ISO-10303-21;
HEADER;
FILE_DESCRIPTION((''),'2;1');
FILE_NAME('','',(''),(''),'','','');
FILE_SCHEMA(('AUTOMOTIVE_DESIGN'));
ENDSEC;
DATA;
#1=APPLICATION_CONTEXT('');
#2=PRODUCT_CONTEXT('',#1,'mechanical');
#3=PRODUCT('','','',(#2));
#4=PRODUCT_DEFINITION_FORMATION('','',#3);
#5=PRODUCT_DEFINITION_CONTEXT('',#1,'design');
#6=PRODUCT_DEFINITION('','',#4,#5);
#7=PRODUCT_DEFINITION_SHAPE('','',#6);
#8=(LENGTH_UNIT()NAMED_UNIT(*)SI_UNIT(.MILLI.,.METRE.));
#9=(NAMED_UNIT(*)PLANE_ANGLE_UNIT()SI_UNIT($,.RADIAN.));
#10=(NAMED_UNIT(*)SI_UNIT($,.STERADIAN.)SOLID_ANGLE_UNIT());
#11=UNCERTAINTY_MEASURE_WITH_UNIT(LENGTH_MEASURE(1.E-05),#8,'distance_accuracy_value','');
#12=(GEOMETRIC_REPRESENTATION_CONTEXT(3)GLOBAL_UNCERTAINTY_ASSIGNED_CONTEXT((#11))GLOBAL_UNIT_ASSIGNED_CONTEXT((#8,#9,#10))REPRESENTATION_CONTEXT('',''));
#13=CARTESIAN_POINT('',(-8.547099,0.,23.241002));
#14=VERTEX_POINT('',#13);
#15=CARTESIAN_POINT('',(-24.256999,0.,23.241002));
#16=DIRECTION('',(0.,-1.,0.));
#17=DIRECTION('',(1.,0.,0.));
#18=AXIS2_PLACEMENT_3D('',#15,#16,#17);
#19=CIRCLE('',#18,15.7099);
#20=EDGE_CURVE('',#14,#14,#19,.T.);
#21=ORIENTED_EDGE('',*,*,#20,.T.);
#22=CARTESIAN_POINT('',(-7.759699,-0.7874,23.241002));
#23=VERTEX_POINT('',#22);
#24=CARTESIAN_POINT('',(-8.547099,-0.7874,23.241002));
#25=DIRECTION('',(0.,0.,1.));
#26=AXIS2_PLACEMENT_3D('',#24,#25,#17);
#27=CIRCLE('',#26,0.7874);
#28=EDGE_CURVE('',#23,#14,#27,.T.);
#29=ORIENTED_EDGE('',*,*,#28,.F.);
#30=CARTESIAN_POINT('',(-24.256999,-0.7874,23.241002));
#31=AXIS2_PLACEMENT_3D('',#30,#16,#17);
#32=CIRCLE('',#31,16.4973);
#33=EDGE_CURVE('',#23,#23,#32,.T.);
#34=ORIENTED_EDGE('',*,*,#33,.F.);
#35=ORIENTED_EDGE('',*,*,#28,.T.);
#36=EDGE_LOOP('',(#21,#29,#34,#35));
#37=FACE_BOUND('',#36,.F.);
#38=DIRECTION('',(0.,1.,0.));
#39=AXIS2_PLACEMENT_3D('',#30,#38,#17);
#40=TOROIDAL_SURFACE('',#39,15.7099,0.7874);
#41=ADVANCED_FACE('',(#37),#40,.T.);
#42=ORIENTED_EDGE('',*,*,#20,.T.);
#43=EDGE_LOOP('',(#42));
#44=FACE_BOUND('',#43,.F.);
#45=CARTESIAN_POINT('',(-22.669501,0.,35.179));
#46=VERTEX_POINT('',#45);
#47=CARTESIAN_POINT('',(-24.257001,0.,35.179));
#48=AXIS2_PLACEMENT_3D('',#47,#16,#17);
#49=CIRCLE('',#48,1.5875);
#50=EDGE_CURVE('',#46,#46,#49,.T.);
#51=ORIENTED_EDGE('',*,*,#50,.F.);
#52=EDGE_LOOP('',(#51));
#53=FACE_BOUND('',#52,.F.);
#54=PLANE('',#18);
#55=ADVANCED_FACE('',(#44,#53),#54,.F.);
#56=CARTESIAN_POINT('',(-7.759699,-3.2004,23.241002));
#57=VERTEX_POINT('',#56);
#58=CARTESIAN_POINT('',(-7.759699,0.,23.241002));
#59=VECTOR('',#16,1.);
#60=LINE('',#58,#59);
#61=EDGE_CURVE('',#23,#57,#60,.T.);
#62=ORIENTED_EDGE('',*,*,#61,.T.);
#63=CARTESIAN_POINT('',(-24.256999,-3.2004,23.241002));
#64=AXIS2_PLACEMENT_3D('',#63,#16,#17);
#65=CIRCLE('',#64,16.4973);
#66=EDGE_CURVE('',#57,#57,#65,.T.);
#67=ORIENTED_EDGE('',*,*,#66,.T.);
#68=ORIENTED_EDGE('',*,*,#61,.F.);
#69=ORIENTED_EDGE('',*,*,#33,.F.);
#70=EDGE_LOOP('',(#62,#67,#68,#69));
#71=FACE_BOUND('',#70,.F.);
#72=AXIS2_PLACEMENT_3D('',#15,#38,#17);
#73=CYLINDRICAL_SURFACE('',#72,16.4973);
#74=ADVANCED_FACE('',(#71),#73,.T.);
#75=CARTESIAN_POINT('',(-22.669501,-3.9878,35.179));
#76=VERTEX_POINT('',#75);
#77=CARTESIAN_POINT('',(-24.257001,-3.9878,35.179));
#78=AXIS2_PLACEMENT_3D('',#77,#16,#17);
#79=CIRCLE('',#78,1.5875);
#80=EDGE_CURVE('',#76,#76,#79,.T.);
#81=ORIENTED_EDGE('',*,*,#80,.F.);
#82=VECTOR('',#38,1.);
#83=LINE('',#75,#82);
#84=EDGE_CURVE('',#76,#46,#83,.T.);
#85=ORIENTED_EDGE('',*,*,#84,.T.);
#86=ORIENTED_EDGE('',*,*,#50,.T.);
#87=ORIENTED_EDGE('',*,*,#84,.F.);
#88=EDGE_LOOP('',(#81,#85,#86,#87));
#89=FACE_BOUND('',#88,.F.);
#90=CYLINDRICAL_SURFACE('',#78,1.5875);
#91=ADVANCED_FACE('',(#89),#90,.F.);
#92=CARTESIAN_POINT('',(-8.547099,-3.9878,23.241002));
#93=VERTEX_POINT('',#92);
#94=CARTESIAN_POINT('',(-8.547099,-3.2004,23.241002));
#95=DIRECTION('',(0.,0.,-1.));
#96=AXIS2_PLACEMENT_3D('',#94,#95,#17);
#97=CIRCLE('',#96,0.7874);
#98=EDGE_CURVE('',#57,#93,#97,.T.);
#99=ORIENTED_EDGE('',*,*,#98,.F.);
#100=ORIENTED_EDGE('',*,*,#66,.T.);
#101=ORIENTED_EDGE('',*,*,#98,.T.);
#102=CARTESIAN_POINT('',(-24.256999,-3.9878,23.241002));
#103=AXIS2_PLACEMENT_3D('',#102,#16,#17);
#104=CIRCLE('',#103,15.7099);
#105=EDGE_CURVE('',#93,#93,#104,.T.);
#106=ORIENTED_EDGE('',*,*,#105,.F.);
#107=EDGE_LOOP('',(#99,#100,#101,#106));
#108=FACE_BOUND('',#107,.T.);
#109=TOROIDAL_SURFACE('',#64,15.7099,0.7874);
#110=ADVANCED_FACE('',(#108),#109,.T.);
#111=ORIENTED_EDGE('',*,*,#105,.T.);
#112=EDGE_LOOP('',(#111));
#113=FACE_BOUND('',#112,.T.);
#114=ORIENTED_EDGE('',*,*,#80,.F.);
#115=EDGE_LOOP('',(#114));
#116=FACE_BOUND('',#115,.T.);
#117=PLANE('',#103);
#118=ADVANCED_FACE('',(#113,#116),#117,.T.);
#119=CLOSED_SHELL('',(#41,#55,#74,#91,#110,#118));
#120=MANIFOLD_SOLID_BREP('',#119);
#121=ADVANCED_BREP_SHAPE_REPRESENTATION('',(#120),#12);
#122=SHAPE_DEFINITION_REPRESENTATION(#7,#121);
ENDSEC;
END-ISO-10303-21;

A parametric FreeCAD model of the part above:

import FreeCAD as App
import Part
import Sketcher

V = App.Vector
Q = App.Units.Quantity


def edges_at(feature, points):
    """Names of the edges that pass closest to the given points."""
    edges = feature.Shape.Edges
    near = lambda p: min(range(len(edges)), key=lambda i: edges[i].distToShape(Part.Vertex(*p))[0])
    return sorted({f"Edge{near(p) + 1}" for p in points})

doc = App.newDocument("Part")
body = doc.addObject("PartDesign::Body", "Body")

# Sketch on XZ plane
sketch1 = body.newObject("Sketcher::SketchObject", "Sketch")
sketch1.AttachmentSupport = (doc.getObject("XZ_Plane"), [""])
sketch1.MapMode = "FlatFace"
sketch1.addGeometry(Part.Circle(V(-24, 23, 0), V(0, 0, 1), 16), False)
sketch1.addConstraint(Sketcher.Constraint("Diameter", 0, Q("1.299 in")))
sketch1.addConstraint(Sketcher.Constraint("DistanceX", 0, 3, -1, 1, Q("0.955 in")))
sketch1.addConstraint(Sketcher.Constraint("DistanceY", -1, 1, 0, 3, Q("0.9150001 in")))
pad1 = body.newObject("PartDesign::Pad", "Pad")
pad1.Profile = sketch1
pad1.Length = Q("0.157 in")
doc.recompute()

fillet = body.newObject("PartDesign::Fillet", "Fillet")
fillet.Base = (pad1, edges_at(pad1, [(-40.754, 0, 23.241), (-40.754, -3.988, 23.241)]))
fillet.Radius = Q("0.031 in")

# Sketch on XZ plane
sketch2 = body.newObject("Sketcher::SketchObject", "Sketch001")
sketch2.AttachmentSupport = (doc.getObject("XZ_Plane"), [""])
sketch2.MapMode = "FlatFace"
sketch2.AttachmentOffset = App.Placement(V(0, 0, 0.157 * 25.4), App.Rotation())
sketch2.addGeometry(Part.Circle(V(-24.3, 35.2, 0), V(0, 0, 1), 1.6), False)
sketch2.addConstraint(Sketcher.Constraint("Diameter", 0, Q("0.125 in")))
sketch2.addConstraint(Sketcher.Constraint("DistanceX", 0, 3, -1, 1, Q("0.955 in")))
sketch2.addConstraint(Sketcher.Constraint("DistanceY", -1, 1, 0, 3, Q("1.385 in")))
pocket1 = body.newObject("PartDesign::Pocket", "Pocket")
pocket1.Profile = sketch2
pocket1.Length = Q("1 in")

doc.recompute()
